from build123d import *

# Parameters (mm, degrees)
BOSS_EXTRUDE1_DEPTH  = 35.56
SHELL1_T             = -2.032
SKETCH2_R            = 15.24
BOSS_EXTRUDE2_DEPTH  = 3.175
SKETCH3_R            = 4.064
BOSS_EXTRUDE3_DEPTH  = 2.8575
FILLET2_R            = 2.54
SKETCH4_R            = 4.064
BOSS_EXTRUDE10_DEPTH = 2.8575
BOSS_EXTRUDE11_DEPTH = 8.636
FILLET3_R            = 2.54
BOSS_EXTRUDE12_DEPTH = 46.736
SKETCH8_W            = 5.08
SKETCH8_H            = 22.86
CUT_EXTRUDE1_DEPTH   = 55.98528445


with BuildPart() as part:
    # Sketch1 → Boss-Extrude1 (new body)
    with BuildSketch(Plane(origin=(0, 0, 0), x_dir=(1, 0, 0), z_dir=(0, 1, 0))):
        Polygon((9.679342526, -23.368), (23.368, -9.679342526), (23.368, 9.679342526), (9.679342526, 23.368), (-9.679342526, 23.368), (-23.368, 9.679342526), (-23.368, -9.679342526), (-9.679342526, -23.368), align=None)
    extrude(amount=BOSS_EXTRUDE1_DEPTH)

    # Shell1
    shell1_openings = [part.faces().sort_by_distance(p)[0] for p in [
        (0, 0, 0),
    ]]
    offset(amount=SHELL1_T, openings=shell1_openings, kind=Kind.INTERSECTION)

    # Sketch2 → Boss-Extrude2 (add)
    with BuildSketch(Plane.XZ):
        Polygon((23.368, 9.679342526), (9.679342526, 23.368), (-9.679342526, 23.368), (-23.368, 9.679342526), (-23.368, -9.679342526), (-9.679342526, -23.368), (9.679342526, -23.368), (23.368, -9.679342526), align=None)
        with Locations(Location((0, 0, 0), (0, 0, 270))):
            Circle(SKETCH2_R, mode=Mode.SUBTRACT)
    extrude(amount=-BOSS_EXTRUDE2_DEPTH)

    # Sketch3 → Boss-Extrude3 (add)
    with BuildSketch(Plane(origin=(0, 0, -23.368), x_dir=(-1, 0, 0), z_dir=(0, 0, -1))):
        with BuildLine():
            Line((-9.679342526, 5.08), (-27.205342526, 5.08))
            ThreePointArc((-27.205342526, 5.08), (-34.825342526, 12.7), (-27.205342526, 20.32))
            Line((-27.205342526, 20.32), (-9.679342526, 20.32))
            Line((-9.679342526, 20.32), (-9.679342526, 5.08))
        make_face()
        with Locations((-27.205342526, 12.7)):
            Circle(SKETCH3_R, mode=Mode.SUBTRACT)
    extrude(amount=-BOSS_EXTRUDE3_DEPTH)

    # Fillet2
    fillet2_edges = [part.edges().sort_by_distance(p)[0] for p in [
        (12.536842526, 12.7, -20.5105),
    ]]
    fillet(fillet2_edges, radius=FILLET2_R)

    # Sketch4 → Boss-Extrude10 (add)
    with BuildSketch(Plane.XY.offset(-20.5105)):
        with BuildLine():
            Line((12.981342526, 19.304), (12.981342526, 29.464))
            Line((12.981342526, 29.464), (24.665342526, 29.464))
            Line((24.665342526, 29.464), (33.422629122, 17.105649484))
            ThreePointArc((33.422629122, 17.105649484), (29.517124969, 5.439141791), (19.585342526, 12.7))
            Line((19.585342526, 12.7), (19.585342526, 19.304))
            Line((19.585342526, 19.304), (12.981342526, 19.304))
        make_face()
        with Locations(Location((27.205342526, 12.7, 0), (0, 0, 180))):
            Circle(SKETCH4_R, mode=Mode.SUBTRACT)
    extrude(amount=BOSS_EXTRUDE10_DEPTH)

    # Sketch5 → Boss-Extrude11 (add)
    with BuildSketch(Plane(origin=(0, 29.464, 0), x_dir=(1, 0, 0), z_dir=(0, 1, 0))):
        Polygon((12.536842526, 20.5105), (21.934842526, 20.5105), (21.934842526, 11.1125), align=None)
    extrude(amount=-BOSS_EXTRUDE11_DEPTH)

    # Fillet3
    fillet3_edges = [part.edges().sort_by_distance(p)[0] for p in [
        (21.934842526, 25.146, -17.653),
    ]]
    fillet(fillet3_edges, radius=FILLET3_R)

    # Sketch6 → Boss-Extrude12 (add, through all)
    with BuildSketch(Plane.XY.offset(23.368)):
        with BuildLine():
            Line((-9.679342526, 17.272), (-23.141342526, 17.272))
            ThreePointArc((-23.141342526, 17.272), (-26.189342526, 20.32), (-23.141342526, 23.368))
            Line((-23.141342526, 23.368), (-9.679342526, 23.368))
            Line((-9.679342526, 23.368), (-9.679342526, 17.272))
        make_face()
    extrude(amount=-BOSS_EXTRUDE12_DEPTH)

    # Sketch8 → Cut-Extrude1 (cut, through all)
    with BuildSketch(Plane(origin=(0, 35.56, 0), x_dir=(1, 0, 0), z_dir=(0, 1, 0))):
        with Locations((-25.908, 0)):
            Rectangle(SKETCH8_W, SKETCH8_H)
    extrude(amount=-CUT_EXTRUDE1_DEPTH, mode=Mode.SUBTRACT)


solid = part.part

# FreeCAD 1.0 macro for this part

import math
import FreeCAD as App
import Part
import Sketcher

V = App.Vector
Q = App.Units.Quantity


def edges_at(feature, points):
    """Names of the edges that pass closest to the given points."""
    edges = feature.Shape.Edges
    near = lambda p: min(range(len(edges)), key=lambda i: edges[i].distToShape(Part.Vertex(*p))[0])
    return sorted({f"Edge{near(p) + 1}" for p in points})


def faces_at(feature, points):
    """Names of the faces that lie closest to the given points."""
    faces = feature.Shape.Faces
    near = lambda p: min(range(len(faces)), key=lambda i: faces[i].distToShape(Part.Vertex(*p))[0])
    return sorted({f"Face{near(p) + 1}" for p in points})

doc = App.newDocument("Part")
body = doc.addObject("PartDesign::Body", "Body")

sketch1 = body.newObject("Sketcher::SketchObject", "Sketch")
sketch1.AttachmentSupport = (doc.getObject("XZ_Plane"), [""])
sketch1.MapMode = "FlatFace"
sketch1.addGeometry([
    Part.LineSegment(V(10, 23, 0), V(23, 10, 0)),
    Part.LineSegment(V(23, 10, 0), V(23, -10, 0)),
    Part.LineSegment(V(23, -10, 0), V(10, -23, 0)),
    Part.LineSegment(V(10, -23, 0), V(-10, -23, 0)),
    Part.LineSegment(V(-10, -23, 0), V(-23, -10, 0)),
    Part.LineSegment(V(-23, -10, 0), V(-23, 10, 0)),
    Part.LineSegment(V(-23, 10, 0), V(-10, 23, 0)),
    Part.LineSegment(V(-10, 23, 0), V(10, 23, 0)),
], False)
sketch1.addConstraint([
    Sketcher.Constraint("Coincident", 0, 2, 1, 1),
    Sketcher.Constraint("Coincident", 1, 2, 2, 1),
    Sketcher.Constraint("Coincident", 2, 2, 3, 1),
    Sketcher.Constraint("Coincident", 3, 2, 4, 1),
    Sketcher.Constraint("Coincident", 4, 2, 5, 1),
    Sketcher.Constraint("Coincident", 5, 2, 6, 1),
    Sketcher.Constraint("Coincident", 6, 2, 7, 1),
    Sketcher.Constraint("Coincident", 7, 2, 0, 1),
    Sketcher.Constraint("Vertical", 1),
    Sketcher.Constraint("Horizontal", 3),
    Sketcher.Constraint("Vertical", 5),
    Sketcher.Constraint("Horizontal", 7),
    Sketcher.Constraint("Symmetric", 0, 2, 4, 2, -1, 1),
    Sketcher.Constraint("Symmetric", 2, 2, 6, 2, -1, 1),
    Sketcher.Constraint("Perpendicular", 0, 2),
    Sketcher.Constraint("Perpendicular", 2, 4),
    Sketcher.Constraint("Perpendicular", 4, 6),
    Sketcher.Constraint("Horizontal", 1, 2, 4, 2),
    Sketcher.Constraint("Vertical", 3, 2, 6, 2),
    Sketcher.Constraint("Equal", 7, 1),
    Sketcher.Constraint("DistanceX", -1, 1, 0, 2, Q("0.92 in")),
    Sketcher.Constraint("DistanceX", 3, 2, 3, 1, Q("19.358685 mm")),
])
pad1 = body.newObject("PartDesign::Pad", "Pad")
pad1.Profile = sketch1
pad1.Length = Q("1.4 in")
pad1.Reversed = True
doc.recompute()

thickness = body.newObject("PartDesign::Thickness", "Thickness")
thickness.Base = (pad1, faces_at(pad1, [(0, 0, 0)]))
thickness.Value = Q("0.08 in")
thickness.Reversed = True
thickness.Join = "Intersection"

sketch2 = body.newObject("Sketcher::SketchObject", "Sketch001")
sketch2.AttachmentSupport = (doc.getObject("XZ_Plane"), [""])
sketch2.MapMode = "FlatFace"
sketch2.addGeometry([
    Part.LineSegment(V(23, 10, 0), V(10, 23, 0)),
    Part.LineSegment(V(10, 23, 0), V(-10, 23, 0)),
    Part.LineSegment(V(-10, 23, 0), V(-23, 10, 0)),
    Part.LineSegment(V(-23, 10, 0), V(-23, -10, 0)),
    Part.LineSegment(V(-23, -10, 0), V(-10, -23, 0)),
    Part.LineSegment(V(-10, -23, 0), V(10, -23, 0)),
    Part.LineSegment(V(10, -23, 0), V(23, -10, 0)),
    Part.LineSegment(V(23, -10, 0), V(23, 10, 0)),
    Part.Circle(V(0, 0, 0), V(0, 0, 1), 15),
], False)
sketch2.addConstraint([
    Sketcher.Constraint("Coincident", 0, 2, 1, 1),
    Sketcher.Constraint("Coincident", 1, 2, 2, 1),
    Sketcher.Constraint("Coincident", 2, 2, 3, 1),
    Sketcher.Constraint("Coincident", 3, 2, 4, 1),
    Sketcher.Constraint("Coincident", 4, 2, 5, 1),
    Sketcher.Constraint("Coincident", 5, 2, 6, 1),
    Sketcher.Constraint("Coincident", 6, 2, 7, 1),
    Sketcher.Constraint("Coincident", 7, 2, 0, 1),
    Sketcher.Constraint("Horizontal", 1),
    Sketcher.Constraint("Vertical", 3),
    Sketcher.Constraint("Horizontal", 5),
    Sketcher.Constraint("Vertical", 7),
    Sketcher.Constraint("Coincident", 8, 3, -1, 1),
    Sketcher.Constraint("Symmetric", 0, 2, 4, 2, -1, 1),
    Sketcher.Constraint("Symmetric", 2, 2, 6, 2, -1, 1),
    Sketcher.Constraint("Perpendicular", 0, 2),
    Sketcher.Constraint("Perpendicular", 2, 4),
    Sketcher.Constraint("Perpendicular", 4, 6),
    Sketcher.Constraint("Horizontal", 3, 2, 6, 2),
    Sketcher.Constraint("Vertical", 1, 2, 4, 2),
    Sketcher.Constraint("Equal", 5, 3),
    Sketcher.Constraint("Diameter", 8, Q("1.2 in")),
    Sketcher.Constraint("DistanceY", -1, 1, 0, 2, Q("0.92 in")),
    Sketcher.Constraint("DistanceX", 1, 2, 1, 1, Q("19.358685 mm")),
])
pad2 = body.newObject("PartDesign::Pad", "Pad001")
pad2.Profile = sketch2
pad2.Length = Q("0.125 in")
pad2.Reversed = True

sketch3 = body.newObject("Sketcher::SketchObject", "Sketch002")
sketch3.AttachmentSupport = (doc.getObject("XY_Plane"), [""])
sketch3.MapMode = "FlatFace"
sketch3.AttachmentOffset = App.Placement(V(0, 0, -0.92 * 25.4), App.Rotation())
sketch3.addGeometry([
    Part.LineSegment(V(27.2, 5.1, 0), V(9.7, 5.1, 0)),
    Part.LineSegment(V(9.7, 5.1, 0), V(9.7, 20.3, 0)),
    Part.LineSegment(V(9.7, 20.3, 0), V(27.2, 20.3, 0)),
    Part.ArcOfCircle(Part.Circle(V(27.2, 12.7, 0), V(0, 0, 1), 7.6), math.radians(-90), math.radians(90)),
    Part.Circle(V(27.2, 12.7, 0), V(0, 0, 1), 4.1),
], False)
sketch3.addConstraint([
    Sketcher.Constraint("Coincident", 0, 2, 1, 1),
    Sketcher.Constraint("Coincident", 1, 2, 2, 1),
    Sketcher.Constraint("Tangent", 2, 2, 3, 2),
    Sketcher.Constraint("Tangent", 3, 1, 0, 1),
    Sketcher.Constraint("Horizontal", 0),
    Sketcher.Constraint("Vertical", 1),
    Sketcher.Constraint("Horizontal", 2),
    Sketcher.Constraint("Coincident", 4, 3, 3, 3),
    Sketcher.Constraint("Radius", 3, Q("0.3 in")),
    Sketcher.Constraint("Diameter", 4, Q("0.32 in")),
    Sketcher.Constraint("DistanceX", 0, 2, 0, 1, Q("0.69 in")),
    Sketcher.Constraint("DistanceY", -1, 1, 3, 3, Q("0.5 in")),
    Sketcher.Constraint("DistanceX", -1, 1, 3, 3, Q("27.205343 mm")),
])
pad3 = body.newObject("PartDesign::Pad", "Pad002")
pad3.Profile = sketch3
pad3.Length = Q("0.1125 in")
doc.recompute()

fillet = body.newObject("PartDesign::Fillet", "Fillet")
fillet.Base = (pad3, edges_at(pad3, [(12.537, 12.7, -20.511)]))
fillet.Radius = Q("0.1 in")

sketch4 = body.newObject("Sketcher::SketchObject", "Sketch003")
sketch4.AttachmentSupport = (doc.getObject("XY_Plane"), [""])
sketch4.MapMode = "FlatFace"
sketch4.AttachmentOffset = App.Placement(V(0, 0, -0.8075 * 25.4), App.Rotation())
sketch4.addGeometry([
    Part.LineSegment(V(13, 29.5, 0), V(13, 19.3, 0)),
    Part.LineSegment(V(13, 19.3, 0), V(19.6, 19.3, 0)),
    Part.LineSegment(V(19.6, 19.3, 0), V(19.6, 12.7, 0)),
    Part.ArcOfCircle(Part.Circle(V(27.2, 12.7, 0), V(0, 0, 1), 7.6), math.radians(180), math.radians(395)),
    Part.LineSegment(V(33.4, 17.1, 0), V(24.7, 29.5, 0)),
    Part.LineSegment(V(24.7, 29.5, 0), V(13, 29.5, 0)),
    Part.Circle(V(27.2, 12.7, 0), V(0, 0, 1), 4.1),
], False)
sketch4.addConstraint([
    Sketcher.Constraint("Coincident", 0, 2, 1, 1),
    Sketcher.Constraint("Coincident", 1, 2, 2, 1),
    Sketcher.Constraint("Tangent", 2, 2, 3, 1),
    Sketcher.Constraint("Tangent", 3, 2, 4, 1),
    Sketcher.Constraint("Coincident", 4, 2, 5, 1),
    Sketcher.Constraint("Coincident", 5, 2, 0, 1),
    Sketcher.Constraint("Vertical", 0),
    Sketcher.Constraint("Horizontal", 1),
    Sketcher.Constraint("Vertical", 2),
    Sketcher.Constraint("Horizontal", 5),
    Sketcher.Constraint("Coincident", 6, 3, 3, 3),
    Sketcher.Constraint("Equal", 1, 2),
    Sketcher.Constraint("Radius", 3, Q("0.3 in")),
    Sketcher.Constraint("Diameter", 6, Q("0.32 in")),
    Sketcher.Constraint("DistanceY", 0, 2, 0, 1, Q("0.4 in")),
    Sketcher.Constraint("DistanceX", 1, 1, 1, 2, Q("0.26 in")),
    Sketcher.Constraint("DistanceX", 5, 2, 5, 1, Q("0.46 in")),
    Sketcher.Constraint("DistanceY", -1, 1, 3, 3, Q("0.5 in")),
    Sketcher.Constraint("DistanceX", -1, 1, 3, 2, Q("33.422629 mm")),
])
pad4 = body.newObject("PartDesign::Pad", "Pad003")
pad4.Profile = sketch4
pad4.Length = Q("0.1125 in")

sketch5 = body.newObject("Sketcher::SketchObject", "Sketch004")
sketch5.AttachmentSupport = (doc.getObject("XZ_Plane"), [""])
sketch5.MapMode = "FlatFace"
sketch5.AttachmentOffset = App.Placement(V(0, 0, -1.16 * 25.4), App.Rotation())
sketch5.addGeometry([
    Part.LineSegment(V(22, -21, 0), V(13, -21, 0)),
    Part.LineSegment(V(13, -21, 0), V(22, -11, 0)),
    Part.LineSegment(V(22, -11, 0), V(22, -21, 0)),
], False)
sketch5.addConstraint([
    Sketcher.Constraint("Coincident", 0, 2, 1, 1),
    Sketcher.Constraint("Coincident", 1, 2, 2, 1),
    Sketcher.Constraint("Coincident", 2, 2, 0, 1),
    Sketcher.Constraint("Horizontal", 0),
    Sketcher.Constraint("Vertical", 2),
    Sketcher.Constraint("Equal", 0, 2),
    Sketcher.Constraint("DistanceX", 0, 2, 0, 1, Q("0.37 in")),
    Sketcher.Constraint("DistanceY", 1, 2, -1, 1, Q("0.4375 in")),
    Sketcher.Constraint("DistanceX", -1, 1, 0, 2, Q("12.536843 mm")),
])
pad5 = body.newObject("PartDesign::Pad", "Pad004")
pad5.Profile = sketch5
pad5.Length = Q("0.34 in")
doc.recompute()

fillet2 = body.newObject("PartDesign::Fillet", "Fillet001")
fillet2.Base = (pad5, edges_at(pad5, [(21.935, 25.146, -17.653)]))
fillet2.Radius = Q("0.1 in")

sketch6 = body.newObject("Sketcher::SketchObject", "Sketch005")
sketch6.AttachmentSupport = (doc.getObject("XY_Plane"), [""])
sketch6.MapMode = "FlatFace"
sketch6.AttachmentOffset = App.Placement(V(0, 0, 0.92 * 25.4), App.Rotation())
sketch6.addGeometry([
    Part.LineSegment(V(-23.1, 17.3, 0), V(-9.7, 17.3, 0)),
    Part.LineSegment(V(-9.7, 17.3, 0), V(-9.7, 23.4, 0)),
    Part.LineSegment(V(-9.7, 23.4, 0), V(-23.1, 23.4, 0)),
    Part.ArcOfCircle(Part.Circle(V(-23.1, 20.3, 0), V(0, 0, 1), 3), math.radians(90), math.radians(270)),
], False)
sketch6.addConstraint([
    Sketcher.Constraint("Coincident", 0, 2, 1, 1),
    Sketcher.Constraint("Coincident", 1, 2, 2, 1),
    Sketcher.Constraint("Tangent", 2, 2, 3, 1),
    Sketcher.Constraint("Tangent", 3, 2, 0, 1),
    Sketcher.Constraint("Horizontal", 0),
    Sketcher.Constraint("Vertical", 1),
    Sketcher.Constraint("Horizontal", 2),
    Sketcher.Constraint("Radius", 3, Q("0.12 in")),
    Sketcher.Constraint("DistanceX", 0, 1, 0, 2, Q("0.53 in")),
    Sketcher.Constraint("DistanceY", -1, 1, 3, 3, Q("0.8 in")),
    Sketcher.Constraint("DistanceX", 3, 3, -1, 1, Q("23.141343 mm")),
])
pad6 = body.newObject("PartDesign::Pad", "Pad005")
pad6.Profile = sketch6
pad6.Length = Q("1.84 in")
pad6.Reversed = True

sketch7 = body.newObject("Sketcher::SketchObject", "Sketch006")
sketch7.AttachmentSupport = (doc.getObject("XZ_Plane"), [""])
sketch7.MapMode = "FlatFace"
sketch7.AttachmentOffset = App.Placement(V(0, 0, -1.4 * 25.4), App.Rotation())
sketch7.addGeometry([
    Part.LineSegment(V(-28, -11, 0), V(-28, 11, 0)),
    Part.LineSegment(V(-28, 11, 0), V(-23, 11, 0)),
    Part.LineSegment(V(-23, 11, 0), V(-23, -11, 0)),
    Part.LineSegment(V(-23, -11, 0), V(-28, -11, 0)),
], False)
sketch7.addConstraint([
    Sketcher.Constraint("Coincident", 0, 2, 1, 1),
    Sketcher.Constraint("Coincident", 1, 2, 2, 1),
    Sketcher.Constraint("Coincident", 2, 2, 3, 1),
    Sketcher.Constraint("Coincident", 3, 2, 0, 1),
    Sketcher.Constraint("Vertical", 0),
    Sketcher.Constraint("Horizontal", 1),
    Sketcher.Constraint("Vertical", 2),
    Sketcher.Constraint("Horizontal", 3),
    Sketcher.Constraint("DistanceX", 1, 1, 1, 2, Q("0.2 in")),
    Sketcher.Constraint("DistanceY", 0, 1, 0, 2, Q("0.9 in")),
    Sketcher.Constraint("DistanceX", 0, 2, -1, 1, Q("1.12 in")),
    Sketcher.Constraint("DistanceY", -1, 1, 0, 2, Q("0.45 in")),
])
pocket1 = body.newObject("PartDesign::Pocket", "Pocket")
pocket1.Profile = sketch7
pocket1.Type = "ThroughAll"
pocket1.Reversed = True

doc.recompute()
